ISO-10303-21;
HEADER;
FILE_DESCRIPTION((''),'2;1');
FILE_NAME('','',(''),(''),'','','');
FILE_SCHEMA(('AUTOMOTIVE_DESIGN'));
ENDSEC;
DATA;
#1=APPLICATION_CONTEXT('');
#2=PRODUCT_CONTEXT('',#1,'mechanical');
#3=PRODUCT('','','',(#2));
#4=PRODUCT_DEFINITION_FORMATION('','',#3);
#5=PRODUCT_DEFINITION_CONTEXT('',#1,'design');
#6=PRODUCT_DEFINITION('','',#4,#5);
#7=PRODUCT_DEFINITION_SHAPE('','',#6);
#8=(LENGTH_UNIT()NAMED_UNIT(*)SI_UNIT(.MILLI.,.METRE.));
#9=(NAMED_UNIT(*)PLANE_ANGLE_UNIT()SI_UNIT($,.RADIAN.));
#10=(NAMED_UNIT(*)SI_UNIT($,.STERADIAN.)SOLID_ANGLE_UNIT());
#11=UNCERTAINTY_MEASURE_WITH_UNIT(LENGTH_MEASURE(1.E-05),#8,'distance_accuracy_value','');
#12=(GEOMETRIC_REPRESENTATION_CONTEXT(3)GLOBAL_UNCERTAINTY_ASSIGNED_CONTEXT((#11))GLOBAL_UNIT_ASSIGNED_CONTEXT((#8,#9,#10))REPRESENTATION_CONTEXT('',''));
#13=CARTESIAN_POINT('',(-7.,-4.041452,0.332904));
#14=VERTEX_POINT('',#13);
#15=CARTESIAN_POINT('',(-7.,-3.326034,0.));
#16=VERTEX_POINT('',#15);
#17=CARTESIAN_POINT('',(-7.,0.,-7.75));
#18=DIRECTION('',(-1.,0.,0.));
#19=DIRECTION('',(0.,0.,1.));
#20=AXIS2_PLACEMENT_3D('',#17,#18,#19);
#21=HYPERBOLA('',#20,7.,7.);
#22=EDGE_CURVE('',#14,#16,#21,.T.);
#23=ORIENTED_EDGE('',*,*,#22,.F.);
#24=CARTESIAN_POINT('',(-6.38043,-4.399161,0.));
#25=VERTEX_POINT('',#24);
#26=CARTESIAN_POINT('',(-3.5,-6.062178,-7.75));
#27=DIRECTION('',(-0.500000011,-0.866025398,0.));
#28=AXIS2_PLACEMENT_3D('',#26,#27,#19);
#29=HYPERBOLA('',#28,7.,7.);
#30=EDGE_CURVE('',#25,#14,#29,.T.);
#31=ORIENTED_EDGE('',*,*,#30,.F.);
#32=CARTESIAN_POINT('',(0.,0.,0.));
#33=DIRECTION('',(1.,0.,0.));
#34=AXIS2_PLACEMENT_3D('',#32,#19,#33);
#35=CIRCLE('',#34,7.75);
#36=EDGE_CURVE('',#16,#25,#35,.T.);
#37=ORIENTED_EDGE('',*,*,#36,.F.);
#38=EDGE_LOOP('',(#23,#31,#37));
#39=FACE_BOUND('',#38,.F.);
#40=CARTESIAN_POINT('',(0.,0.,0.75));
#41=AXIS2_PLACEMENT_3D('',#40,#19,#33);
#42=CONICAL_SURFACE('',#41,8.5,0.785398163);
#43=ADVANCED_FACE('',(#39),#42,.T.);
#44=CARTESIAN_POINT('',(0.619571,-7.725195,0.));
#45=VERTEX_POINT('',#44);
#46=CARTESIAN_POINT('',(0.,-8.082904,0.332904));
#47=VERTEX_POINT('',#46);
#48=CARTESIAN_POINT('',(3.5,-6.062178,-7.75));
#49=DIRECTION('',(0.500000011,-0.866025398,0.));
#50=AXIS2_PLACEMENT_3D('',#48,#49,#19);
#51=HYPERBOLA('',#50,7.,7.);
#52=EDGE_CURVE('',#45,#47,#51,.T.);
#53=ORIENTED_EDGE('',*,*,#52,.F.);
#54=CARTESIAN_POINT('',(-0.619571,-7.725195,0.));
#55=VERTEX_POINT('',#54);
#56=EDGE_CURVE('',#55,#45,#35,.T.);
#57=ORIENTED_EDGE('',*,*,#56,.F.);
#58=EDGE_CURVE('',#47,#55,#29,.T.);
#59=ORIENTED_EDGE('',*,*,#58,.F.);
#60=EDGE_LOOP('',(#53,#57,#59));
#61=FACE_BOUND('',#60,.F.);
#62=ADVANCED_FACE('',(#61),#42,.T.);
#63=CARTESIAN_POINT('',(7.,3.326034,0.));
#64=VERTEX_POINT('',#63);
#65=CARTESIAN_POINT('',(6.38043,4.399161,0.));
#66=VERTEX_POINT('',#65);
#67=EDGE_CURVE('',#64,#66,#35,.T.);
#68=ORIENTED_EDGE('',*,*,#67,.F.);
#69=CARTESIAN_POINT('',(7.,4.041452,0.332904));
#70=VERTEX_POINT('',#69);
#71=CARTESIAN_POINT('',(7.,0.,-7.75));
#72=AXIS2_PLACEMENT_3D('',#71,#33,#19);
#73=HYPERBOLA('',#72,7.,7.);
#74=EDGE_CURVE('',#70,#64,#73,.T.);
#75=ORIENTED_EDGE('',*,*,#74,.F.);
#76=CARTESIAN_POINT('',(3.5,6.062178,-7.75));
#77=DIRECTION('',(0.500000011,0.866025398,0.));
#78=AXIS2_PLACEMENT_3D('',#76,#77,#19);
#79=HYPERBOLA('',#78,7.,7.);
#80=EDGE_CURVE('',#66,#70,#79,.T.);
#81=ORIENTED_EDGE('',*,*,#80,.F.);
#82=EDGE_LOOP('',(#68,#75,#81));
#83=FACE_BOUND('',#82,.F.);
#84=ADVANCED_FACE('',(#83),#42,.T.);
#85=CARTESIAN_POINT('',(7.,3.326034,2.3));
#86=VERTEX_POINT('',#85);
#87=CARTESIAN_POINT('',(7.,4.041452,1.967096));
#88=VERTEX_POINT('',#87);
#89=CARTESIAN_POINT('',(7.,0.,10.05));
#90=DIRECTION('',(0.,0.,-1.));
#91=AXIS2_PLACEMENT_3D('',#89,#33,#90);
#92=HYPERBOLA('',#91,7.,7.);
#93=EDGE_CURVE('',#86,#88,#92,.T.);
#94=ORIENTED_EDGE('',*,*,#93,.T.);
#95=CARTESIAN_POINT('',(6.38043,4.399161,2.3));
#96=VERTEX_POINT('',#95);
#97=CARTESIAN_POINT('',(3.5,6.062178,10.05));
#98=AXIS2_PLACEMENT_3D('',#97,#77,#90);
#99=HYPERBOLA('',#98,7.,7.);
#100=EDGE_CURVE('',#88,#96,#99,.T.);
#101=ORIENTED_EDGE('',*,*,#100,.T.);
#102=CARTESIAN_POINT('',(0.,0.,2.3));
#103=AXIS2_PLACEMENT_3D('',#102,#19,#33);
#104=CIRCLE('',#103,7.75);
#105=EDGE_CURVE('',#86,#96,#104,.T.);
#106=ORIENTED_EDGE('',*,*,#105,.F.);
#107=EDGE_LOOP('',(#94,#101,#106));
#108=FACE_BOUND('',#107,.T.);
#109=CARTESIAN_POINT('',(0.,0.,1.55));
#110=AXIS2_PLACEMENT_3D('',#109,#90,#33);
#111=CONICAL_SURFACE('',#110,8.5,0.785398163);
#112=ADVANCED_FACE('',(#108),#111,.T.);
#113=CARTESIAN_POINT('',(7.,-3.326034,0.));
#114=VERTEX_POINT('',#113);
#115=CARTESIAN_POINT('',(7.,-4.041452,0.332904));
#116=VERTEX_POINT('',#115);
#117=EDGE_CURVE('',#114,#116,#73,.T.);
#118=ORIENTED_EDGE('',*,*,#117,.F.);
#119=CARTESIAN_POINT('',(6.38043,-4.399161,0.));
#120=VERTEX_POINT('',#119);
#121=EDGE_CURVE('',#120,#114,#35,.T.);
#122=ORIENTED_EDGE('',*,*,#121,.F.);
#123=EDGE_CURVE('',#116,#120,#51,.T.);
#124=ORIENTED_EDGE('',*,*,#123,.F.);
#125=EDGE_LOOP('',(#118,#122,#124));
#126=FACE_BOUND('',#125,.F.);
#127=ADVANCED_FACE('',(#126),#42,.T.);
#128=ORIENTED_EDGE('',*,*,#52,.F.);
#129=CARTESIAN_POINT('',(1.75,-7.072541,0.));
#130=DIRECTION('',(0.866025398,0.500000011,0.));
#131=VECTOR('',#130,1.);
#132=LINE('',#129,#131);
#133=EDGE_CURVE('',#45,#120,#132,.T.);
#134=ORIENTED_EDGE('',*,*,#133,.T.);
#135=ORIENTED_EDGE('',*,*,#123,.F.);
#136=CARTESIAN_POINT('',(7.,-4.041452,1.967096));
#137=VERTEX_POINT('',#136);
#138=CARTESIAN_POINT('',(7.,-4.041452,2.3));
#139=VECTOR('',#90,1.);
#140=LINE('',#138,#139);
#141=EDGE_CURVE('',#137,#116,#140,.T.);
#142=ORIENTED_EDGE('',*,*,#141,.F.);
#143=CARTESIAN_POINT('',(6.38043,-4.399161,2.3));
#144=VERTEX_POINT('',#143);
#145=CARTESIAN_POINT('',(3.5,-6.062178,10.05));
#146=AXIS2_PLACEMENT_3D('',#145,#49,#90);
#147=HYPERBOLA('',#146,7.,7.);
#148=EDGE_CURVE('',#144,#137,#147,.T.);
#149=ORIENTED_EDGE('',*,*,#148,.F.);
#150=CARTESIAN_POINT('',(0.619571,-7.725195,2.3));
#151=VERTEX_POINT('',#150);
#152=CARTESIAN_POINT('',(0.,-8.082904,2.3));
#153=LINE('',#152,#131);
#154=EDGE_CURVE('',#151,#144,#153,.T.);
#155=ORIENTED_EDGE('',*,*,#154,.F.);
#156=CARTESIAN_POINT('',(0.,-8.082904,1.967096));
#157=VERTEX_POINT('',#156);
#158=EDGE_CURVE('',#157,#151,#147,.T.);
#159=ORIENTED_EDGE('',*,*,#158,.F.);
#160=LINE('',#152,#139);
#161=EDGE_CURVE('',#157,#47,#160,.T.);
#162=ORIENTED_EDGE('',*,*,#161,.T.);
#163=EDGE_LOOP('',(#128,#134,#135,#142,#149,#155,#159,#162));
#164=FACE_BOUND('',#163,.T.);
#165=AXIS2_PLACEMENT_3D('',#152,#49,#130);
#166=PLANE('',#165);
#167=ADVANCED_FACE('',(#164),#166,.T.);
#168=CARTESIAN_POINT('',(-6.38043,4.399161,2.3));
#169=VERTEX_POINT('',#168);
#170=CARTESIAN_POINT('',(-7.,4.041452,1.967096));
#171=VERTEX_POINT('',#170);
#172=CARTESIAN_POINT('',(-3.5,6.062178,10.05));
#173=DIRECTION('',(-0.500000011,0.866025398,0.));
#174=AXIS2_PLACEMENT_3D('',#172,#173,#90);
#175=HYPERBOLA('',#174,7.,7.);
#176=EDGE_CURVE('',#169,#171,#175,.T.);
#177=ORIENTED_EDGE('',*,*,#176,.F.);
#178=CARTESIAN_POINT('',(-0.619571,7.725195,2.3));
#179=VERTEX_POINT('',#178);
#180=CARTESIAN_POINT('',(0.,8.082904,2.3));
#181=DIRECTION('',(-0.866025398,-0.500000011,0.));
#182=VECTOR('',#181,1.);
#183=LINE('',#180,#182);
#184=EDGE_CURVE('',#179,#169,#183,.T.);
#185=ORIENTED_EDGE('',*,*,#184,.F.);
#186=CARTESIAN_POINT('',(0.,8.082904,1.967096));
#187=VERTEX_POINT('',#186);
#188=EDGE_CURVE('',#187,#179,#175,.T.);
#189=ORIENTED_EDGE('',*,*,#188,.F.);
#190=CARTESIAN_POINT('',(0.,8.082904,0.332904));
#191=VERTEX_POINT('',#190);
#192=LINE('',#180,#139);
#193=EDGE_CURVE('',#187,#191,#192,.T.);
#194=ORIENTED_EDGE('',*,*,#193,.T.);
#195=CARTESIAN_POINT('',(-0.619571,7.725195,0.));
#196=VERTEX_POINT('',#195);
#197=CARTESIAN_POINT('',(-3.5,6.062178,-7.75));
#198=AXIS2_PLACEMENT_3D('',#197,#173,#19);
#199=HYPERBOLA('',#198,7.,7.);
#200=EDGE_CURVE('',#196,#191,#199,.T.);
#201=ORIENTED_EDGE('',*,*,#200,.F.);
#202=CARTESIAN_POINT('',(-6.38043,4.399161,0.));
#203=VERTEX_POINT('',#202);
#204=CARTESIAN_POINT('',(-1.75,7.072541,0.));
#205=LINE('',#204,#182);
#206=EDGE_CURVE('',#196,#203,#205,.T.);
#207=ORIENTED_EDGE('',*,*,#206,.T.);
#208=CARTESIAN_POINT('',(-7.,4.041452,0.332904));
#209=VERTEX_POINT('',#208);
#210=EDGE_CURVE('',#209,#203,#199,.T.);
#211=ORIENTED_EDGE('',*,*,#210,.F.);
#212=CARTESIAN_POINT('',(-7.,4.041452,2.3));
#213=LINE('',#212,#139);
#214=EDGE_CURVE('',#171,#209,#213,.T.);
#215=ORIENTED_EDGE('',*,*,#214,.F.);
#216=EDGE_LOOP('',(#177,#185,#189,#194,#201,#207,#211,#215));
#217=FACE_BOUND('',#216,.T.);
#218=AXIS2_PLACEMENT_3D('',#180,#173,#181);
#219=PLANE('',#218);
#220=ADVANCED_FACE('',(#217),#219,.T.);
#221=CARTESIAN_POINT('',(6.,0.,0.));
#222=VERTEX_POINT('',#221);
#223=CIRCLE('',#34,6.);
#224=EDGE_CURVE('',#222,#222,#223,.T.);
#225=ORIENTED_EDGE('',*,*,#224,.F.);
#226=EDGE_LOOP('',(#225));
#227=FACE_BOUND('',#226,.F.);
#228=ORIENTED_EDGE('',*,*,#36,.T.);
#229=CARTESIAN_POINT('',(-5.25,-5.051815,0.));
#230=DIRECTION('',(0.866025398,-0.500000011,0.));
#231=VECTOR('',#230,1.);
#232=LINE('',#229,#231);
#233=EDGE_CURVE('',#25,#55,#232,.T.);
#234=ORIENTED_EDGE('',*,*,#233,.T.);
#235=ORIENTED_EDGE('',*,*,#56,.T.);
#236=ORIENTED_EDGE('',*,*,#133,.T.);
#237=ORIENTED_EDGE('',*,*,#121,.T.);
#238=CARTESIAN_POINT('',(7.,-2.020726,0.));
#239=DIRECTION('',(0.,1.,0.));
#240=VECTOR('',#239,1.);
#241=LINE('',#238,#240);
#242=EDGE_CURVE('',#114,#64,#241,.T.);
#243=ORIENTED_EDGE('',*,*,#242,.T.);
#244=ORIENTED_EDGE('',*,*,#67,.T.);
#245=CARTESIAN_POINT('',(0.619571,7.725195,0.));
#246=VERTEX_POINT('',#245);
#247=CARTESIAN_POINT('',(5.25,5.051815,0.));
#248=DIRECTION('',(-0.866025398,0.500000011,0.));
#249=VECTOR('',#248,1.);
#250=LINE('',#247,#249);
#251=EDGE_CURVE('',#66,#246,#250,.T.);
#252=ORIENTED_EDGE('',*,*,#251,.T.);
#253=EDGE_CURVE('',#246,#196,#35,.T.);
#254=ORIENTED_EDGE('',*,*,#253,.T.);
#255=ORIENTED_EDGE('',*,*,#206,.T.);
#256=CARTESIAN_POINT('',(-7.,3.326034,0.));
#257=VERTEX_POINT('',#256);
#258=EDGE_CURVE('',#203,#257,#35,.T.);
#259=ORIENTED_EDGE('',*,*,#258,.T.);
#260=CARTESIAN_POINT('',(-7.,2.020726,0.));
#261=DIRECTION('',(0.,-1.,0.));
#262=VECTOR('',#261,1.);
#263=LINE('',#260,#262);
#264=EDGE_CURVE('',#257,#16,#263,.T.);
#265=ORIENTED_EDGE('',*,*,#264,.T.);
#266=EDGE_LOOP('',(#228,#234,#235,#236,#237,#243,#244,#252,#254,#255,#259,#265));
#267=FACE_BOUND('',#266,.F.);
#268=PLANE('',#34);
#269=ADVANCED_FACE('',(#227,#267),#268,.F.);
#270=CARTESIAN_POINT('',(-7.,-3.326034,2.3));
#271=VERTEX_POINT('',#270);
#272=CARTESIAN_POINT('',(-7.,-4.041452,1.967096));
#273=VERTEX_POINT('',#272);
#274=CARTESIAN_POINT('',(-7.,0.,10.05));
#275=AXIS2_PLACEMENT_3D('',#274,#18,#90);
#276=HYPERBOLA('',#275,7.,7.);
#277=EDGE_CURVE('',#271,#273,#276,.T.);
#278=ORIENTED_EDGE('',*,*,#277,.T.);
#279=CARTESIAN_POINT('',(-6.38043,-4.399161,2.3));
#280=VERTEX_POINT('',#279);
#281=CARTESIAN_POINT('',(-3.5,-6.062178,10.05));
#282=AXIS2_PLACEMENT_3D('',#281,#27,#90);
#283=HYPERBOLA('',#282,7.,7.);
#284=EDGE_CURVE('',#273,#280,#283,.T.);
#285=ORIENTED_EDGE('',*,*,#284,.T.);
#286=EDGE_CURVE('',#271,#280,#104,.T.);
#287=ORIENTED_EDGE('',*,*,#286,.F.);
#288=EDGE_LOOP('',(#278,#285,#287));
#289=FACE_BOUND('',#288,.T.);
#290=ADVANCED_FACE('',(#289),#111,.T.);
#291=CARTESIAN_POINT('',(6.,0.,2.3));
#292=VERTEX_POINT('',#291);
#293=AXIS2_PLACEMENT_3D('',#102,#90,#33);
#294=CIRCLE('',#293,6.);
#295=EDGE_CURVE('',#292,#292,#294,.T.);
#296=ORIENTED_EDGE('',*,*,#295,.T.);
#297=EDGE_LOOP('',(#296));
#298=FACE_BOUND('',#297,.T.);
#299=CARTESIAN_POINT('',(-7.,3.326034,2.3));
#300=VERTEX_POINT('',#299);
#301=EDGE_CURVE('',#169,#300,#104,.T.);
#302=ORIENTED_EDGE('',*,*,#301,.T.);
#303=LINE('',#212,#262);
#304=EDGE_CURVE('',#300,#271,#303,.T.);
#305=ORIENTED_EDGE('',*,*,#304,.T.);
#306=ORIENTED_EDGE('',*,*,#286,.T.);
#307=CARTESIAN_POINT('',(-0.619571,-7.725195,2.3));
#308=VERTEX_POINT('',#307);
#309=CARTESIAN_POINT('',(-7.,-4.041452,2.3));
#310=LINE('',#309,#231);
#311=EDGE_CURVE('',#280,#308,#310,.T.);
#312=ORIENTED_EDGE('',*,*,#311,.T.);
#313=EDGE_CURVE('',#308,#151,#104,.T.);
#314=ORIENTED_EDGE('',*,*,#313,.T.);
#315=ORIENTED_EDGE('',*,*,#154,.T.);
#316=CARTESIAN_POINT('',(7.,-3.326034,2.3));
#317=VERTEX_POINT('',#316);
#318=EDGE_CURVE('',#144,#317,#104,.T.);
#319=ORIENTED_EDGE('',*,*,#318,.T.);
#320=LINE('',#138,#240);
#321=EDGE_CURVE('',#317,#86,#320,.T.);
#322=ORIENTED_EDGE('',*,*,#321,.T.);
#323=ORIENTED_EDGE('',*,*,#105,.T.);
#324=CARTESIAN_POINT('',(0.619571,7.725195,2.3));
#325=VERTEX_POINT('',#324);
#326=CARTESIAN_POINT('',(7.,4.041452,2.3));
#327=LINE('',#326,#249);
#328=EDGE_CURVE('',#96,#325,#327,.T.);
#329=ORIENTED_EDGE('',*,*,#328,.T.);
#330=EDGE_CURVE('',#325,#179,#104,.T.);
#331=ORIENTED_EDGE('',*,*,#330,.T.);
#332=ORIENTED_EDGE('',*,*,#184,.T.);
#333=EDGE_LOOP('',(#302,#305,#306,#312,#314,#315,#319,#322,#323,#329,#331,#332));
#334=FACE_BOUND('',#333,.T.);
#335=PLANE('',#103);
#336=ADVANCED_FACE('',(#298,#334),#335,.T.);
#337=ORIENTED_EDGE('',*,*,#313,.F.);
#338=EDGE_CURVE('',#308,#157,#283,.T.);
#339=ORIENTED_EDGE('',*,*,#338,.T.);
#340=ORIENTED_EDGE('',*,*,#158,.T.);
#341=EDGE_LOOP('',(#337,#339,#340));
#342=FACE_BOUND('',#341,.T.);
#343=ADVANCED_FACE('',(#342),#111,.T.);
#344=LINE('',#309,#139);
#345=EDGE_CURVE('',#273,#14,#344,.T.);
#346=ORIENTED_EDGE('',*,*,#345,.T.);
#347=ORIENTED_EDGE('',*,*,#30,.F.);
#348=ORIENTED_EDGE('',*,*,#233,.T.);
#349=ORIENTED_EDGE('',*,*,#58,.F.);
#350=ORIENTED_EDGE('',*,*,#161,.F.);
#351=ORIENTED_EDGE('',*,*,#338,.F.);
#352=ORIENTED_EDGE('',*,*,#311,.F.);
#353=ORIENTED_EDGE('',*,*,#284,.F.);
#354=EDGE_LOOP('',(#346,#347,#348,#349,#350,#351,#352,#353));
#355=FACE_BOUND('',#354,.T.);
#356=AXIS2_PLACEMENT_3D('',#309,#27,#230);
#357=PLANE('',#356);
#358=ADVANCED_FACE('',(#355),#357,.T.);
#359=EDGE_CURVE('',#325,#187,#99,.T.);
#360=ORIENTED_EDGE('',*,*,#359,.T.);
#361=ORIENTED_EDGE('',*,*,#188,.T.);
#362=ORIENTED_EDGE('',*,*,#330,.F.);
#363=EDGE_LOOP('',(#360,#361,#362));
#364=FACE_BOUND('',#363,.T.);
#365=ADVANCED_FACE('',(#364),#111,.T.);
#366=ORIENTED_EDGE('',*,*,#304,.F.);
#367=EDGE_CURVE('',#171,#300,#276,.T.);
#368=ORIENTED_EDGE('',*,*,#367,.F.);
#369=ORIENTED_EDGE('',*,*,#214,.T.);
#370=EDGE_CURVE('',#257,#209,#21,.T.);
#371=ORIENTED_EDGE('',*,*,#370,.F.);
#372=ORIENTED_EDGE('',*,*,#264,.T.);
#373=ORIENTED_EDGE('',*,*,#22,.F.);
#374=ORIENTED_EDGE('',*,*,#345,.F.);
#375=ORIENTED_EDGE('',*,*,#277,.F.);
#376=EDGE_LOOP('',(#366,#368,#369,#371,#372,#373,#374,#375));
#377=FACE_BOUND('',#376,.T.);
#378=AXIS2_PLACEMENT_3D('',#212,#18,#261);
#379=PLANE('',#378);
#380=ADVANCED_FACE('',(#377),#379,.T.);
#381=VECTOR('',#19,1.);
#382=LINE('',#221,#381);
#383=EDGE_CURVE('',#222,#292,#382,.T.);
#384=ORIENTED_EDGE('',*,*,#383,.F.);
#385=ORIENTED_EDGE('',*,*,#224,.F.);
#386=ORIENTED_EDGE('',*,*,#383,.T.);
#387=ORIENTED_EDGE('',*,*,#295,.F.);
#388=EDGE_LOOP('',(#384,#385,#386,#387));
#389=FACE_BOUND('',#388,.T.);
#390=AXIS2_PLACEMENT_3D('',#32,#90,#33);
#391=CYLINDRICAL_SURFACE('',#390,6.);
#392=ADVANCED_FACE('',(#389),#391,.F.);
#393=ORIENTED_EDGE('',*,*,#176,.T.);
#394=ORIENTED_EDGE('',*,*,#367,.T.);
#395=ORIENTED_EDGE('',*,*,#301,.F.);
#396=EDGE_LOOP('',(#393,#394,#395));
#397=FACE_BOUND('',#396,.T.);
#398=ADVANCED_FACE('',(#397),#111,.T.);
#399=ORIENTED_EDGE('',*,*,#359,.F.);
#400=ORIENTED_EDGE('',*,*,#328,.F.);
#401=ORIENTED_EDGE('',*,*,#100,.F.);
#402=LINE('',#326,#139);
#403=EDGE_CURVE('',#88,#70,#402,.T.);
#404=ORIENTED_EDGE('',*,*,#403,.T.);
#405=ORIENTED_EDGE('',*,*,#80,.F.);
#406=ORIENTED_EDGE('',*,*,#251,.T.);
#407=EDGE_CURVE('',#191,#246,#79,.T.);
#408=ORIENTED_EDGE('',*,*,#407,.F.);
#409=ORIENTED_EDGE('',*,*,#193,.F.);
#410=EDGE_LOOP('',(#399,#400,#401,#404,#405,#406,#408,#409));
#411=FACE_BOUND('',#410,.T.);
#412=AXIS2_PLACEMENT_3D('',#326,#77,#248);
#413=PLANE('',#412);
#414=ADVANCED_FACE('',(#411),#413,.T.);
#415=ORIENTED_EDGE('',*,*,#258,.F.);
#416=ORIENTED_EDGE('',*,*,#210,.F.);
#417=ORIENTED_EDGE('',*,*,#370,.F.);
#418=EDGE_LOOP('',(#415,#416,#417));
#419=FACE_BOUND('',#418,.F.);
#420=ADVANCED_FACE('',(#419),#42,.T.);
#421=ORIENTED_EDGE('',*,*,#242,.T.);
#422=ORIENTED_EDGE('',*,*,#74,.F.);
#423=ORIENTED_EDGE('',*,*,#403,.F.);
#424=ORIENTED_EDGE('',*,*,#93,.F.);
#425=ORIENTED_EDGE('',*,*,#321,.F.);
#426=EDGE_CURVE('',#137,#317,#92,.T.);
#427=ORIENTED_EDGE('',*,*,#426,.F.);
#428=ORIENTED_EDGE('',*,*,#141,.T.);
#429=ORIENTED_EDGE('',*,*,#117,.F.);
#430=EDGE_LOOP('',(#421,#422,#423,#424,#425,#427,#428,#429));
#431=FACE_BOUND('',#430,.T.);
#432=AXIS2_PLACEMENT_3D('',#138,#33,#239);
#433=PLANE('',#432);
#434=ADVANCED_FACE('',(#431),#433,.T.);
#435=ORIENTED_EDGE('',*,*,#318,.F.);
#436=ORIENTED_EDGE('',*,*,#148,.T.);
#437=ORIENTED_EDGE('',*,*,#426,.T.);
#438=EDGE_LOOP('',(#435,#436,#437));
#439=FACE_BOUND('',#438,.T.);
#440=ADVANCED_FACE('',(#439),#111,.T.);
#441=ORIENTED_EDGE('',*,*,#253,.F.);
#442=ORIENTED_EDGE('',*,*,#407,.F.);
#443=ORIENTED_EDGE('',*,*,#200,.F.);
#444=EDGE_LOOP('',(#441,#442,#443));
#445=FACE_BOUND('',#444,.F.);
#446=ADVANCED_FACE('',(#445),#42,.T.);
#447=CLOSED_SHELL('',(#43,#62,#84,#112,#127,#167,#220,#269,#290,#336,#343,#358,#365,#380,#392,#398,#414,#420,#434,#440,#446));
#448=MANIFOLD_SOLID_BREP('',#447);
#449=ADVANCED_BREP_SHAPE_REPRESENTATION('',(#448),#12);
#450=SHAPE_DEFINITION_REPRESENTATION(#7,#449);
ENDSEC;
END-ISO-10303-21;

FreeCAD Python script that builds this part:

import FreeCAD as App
import Part
import Sketcher
Q = App.Units.Quantity


def edges_at(feature, points):
    """Names of the edges that pass closest to the given points."""
    edges = feature.Shape.Edges
    near = lambda p: min(range(len(edges)), key=lambda i: edges[i].distToShape(Part.Vertex(*p))[0])
    return sorted({f"Edge{near(p) + 1}" for p in points})

doc = App.newDocument("Part")
params = doc.addObject("Spreadsheet::Sheet", "Params")
for row, (alias, value) in enumerate([
    ("sketch1_diameter", "17 mm"),
    ("pad1_length", "2.3 mm"),
    ("chamfer_size", "0.75 mm"),
    ("chamfer2_size", "0.75 mm"),
    ("sketch3_diameter", "12 mm"),
], start=1):
    params.set(f"A{row}", alias)
    params.set(f"B{row}", "=" + value)
    params.setAlias(f"B{row}", alias)

body = doc.addObject("PartDesign::Body", "Body")

# Sketch on XY plane
sketch1 = body.newObject("Sketcher::SketchObject", "Sketch")
sketch1.AttachmentSupport = (doc.getObject("XY_Plane"), [""])
sketch1.MapMode = "FlatFace"
sketch1.addGeometry(Part.Circle(App.Vector(0, 0, 0), App.Vector(0, 0, 1), 8), False)
sketch1.addConstraint([
    Sketcher.Constraint("Coincident", 0, 3, -1, 1),
    Sketcher.Constraint("Diameter", 0, 17.0),
])
sketch1.setExpression("Constraints[1]", "Params.sketch1_diameter")
pad1 = body.newObject("PartDesign::Pad", "Pad")
pad1.Profile = sketch1
pad1.setExpression("Length", "Params.pad1_length")
doc.recompute()

chamfer = body.newObject("PartDesign::Chamfer", "Chamfer")
chamfer.Base = (pad1, edges_at(pad1, [(-8.5, 0, 2.3)]))
chamfer.setExpression("Size", "Params.chamfer_size")
doc.recompute()

chamfer2 = body.newObject("PartDesign::Chamfer", "Chamfer001")
chamfer2.Base = (chamfer, edges_at(chamfer, [(-8.5, 0, 0)]))
chamfer2.setExpression("Size", "Params.chamfer2_size")

# Sketch on XY plane
sketch2 = body.newObject("Sketcher::SketchObject", "Sketch001")
sketch2.AttachmentSupport = (doc.getObject("XY_Plane"), [""])
sketch2.MapMode = "FlatFace"
sketch2.AttachmentOffset = App.Placement(App.Vector(0, 0, 2.3), App.Rotation())
sketch2.addGeometry([
    Part.Circle(App.Vector(0, 0, 0), App.Vector(0, 0, 1), 10),  # 0
    Part.LineSegment(App.Vector(-7, 4, 0), App.Vector(0, 8, 0)),  # 1
    Part.LineSegment(App.Vector(0, 8, 0), App.Vector(7, 4, 0)),  # 2
    Part.LineSegment(App.Vector(7, 4, 0), App.Vector(7, -4, 0)),  # 3
    Part.LineSegment(App.Vector(7, -4, 0), App.Vector(0, -8, 0)),  # 4
    Part.LineSegment(App.Vector(0, -8, 0), App.Vector(-7, -4, 0)),  # 5
    Part.LineSegment(App.Vector(-7, -4, 0), App.Vector(-7, 4, 0)),  # 6
], False)
sketch2.addConstraint([
    Sketcher.Constraint("Coincident", 1, 2, 2, 1),
    Sketcher.Constraint("Coincident", 2, 2, 3, 1),
    Sketcher.Constraint("Coincident", 3, 2, 4, 1),
    Sketcher.Constraint("Coincident", 4, 2, 5, 1),
    Sketcher.Constraint("Coincident", 5, 2, 6, 1),
    Sketcher.Constraint("Coincident", 6, 2, 1, 1),
    Sketcher.Constraint("Vertical", 3),
    Sketcher.Constraint("Vertical", 6),
    Sketcher.Constraint("Coincident", 0, 3, -1, 1),
    Sketcher.Constraint("Symmetric", 1, 2, 4, 2, -1, 1),
    Sketcher.Constraint("Symmetric", 2, 2, 5, 2, -1, 1),
    Sketcher.Constraint("PointOnObject", 1, 2, -2),
    Sketcher.Constraint("Parallel", 1, 4),
    Sketcher.Constraint("Horizontal", 3, 2, 5, 2),
    Sketcher.Constraint("Angle", 1, Q("30.000001 deg")),
    Sketcher.Constraint("DistanceX", -1, 1, 2, 2, 7.0),
    Sketcher.Constraint("Diameter", 0, 19.369648),
    Sketcher.Constraint("DistanceY", 3, 2, 3, 1, 8.082904),
])
pocket1 = body.newObject("PartDesign::Pocket", "Pocket")
pocket1.Profile = sketch2
pocket1.Type = "ThroughAll"
pocket1.Midplane = True

# Sketch on XY plane
sketch3 = body.newObject("Sketcher::SketchObject", "Sketch002")
sketch3.AttachmentSupport = (doc.getObject("XY_Plane"), [""])
sketch3.MapMode = "FlatFace"
sketch3.addGeometry(Part.Circle(App.Vector(0, 0, 0), App.Vector(0, 0, 1), 6), False)
sketch3.addConstraint([
    Sketcher.Constraint("Coincident", 0, 3, -1, 1),
    Sketcher.Constraint("Diameter", 0, 12.0),
])
sketch3.setExpression("Constraints[1]", "Params.sketch3_diameter")
pocket2 = body.newObject("PartDesign::Pocket", "Pocket001")
pocket2.Profile = sketch3
pocket2.Type = "ThroughAll"
pocket2.Midplane = True

doc.recompute()
